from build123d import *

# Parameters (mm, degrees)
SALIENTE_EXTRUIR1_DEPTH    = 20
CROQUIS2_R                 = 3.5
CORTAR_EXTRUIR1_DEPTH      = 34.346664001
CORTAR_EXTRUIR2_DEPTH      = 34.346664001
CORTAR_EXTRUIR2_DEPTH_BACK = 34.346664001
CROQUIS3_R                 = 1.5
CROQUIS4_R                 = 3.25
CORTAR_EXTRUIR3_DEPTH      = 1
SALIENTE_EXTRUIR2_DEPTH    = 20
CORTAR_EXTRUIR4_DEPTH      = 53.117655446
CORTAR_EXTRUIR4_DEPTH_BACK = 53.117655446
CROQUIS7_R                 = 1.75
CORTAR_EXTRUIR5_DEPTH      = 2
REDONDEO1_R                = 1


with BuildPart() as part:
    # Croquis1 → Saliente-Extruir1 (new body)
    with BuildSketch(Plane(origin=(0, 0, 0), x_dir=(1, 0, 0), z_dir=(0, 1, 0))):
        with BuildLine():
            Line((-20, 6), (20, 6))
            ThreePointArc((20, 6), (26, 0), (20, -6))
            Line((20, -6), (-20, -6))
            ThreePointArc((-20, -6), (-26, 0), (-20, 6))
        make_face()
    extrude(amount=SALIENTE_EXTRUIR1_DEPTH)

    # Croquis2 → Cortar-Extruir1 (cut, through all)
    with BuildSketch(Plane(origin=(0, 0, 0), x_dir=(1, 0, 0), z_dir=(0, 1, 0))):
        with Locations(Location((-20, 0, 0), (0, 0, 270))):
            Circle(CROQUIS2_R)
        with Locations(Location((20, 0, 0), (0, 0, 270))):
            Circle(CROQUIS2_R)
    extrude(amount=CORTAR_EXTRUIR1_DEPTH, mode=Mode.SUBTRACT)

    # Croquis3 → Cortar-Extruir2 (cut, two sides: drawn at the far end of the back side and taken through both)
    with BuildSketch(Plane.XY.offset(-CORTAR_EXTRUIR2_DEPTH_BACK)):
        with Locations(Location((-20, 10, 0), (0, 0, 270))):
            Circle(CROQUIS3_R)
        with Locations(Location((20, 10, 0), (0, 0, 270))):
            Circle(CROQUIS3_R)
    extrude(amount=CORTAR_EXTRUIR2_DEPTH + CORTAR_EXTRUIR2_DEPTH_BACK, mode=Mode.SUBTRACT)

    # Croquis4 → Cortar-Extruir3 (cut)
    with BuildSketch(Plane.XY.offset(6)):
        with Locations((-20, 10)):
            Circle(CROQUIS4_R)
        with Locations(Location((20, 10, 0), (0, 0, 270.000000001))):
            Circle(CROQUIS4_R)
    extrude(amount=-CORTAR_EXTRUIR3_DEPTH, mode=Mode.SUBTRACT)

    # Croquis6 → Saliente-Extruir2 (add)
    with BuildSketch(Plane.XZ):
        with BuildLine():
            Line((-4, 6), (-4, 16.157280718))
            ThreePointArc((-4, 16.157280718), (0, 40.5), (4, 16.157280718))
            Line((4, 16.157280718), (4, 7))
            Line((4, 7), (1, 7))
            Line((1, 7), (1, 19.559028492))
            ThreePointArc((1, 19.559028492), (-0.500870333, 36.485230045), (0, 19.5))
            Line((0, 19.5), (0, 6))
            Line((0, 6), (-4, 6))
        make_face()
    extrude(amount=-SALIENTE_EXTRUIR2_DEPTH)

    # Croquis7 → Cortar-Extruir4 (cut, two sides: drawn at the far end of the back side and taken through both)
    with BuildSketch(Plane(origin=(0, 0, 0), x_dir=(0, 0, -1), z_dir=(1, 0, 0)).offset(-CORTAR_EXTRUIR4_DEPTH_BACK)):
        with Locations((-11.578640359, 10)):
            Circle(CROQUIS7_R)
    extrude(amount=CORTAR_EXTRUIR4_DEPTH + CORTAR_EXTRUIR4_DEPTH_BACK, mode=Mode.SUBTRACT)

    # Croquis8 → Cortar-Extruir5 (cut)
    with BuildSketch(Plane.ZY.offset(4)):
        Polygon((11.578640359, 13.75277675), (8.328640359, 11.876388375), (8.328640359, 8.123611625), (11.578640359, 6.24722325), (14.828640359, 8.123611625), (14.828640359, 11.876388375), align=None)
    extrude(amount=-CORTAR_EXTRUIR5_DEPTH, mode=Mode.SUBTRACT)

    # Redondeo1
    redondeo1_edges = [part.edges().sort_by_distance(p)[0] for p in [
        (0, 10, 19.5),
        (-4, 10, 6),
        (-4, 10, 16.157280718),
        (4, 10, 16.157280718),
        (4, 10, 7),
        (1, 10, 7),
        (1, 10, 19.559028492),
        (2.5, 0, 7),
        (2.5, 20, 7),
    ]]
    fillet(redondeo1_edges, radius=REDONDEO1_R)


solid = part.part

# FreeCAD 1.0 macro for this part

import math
import FreeCAD as App
import Part
import Sketcher

V = App.Vector
Q = App.Units.Quantity


def edges_at(feature, points):
    """Names of the edges that pass closest to the given points."""
    edges = feature.Shape.Edges
    near = lambda p: min(range(len(edges)), key=lambda i: edges[i].distToShape(Part.Vertex(*p))[0])
    return sorted({f"Edge{near(p) + 1}" for p in points})

doc = App.newDocument("Part")
body = doc.addObject("PartDesign::Body", "Body")

sketch1 = doc.addObject("Sketcher::SketchObject", "Sketch")
body.addObject(sketch1)
sketch1.AttachmentSupport = (doc.XZ_Plane, [""])
sketch1.MapMode = "FlatFace"
sketch1.addGeometry(Part.LineSegment(V(20, -6, 0), V(-20, -6, 0)), False)
sketch1.addGeometry(Part.ArcOfCircle(Part.Circle(V(-20, 0, 0), V(0, 0, 1), 6), math.radians(90), math.radians(270)), False)
sketch1.addGeometry(Part.LineSegment(V(-20, 6, 0), V(20, 6, 0)), False)
sketch1.addGeometry(Part.ArcOfCircle(Part.Circle(V(20, 0, 0), V(0, 0, 1), 6), math.radians(-90), math.radians(90)), False)
sketch1.addConstraint(Sketcher.Constraint("Tangent", 0, 2, 1, 2))
sketch1.addConstraint(Sketcher.Constraint("Tangent", 1, 1, 2, 1))
sketch1.addConstraint(Sketcher.Constraint("Tangent", 2, 2, 3, 2))
sketch1.addConstraint(Sketcher.Constraint("Tangent", 3, 1, 0, 1))
sketch1.addConstraint(Sketcher.Constraint("Horizontal", 0))
sketch1.addConstraint(Sketcher.Constraint("Horizontal", 2))
sketch1.addConstraint(Sketcher.Constraint("Symmetric", 1, 3, 3, 3, -1, 1))
sketch1.addConstraint(Sketcher.Constraint("Radius", 1, Q("6 mm")))
sketch1.addConstraint(Sketcher.Constraint("DistanceX", 0, 2, 0, 1, Q("40 mm")))
pad1 = doc.addObject("PartDesign::Pad", "Pad")
body.addObject(pad1)
pad1.Profile = sketch1
pad1.Length = 20
pad1.Reversed = True

sketch2 = doc.addObject("Sketcher::SketchObject", "Sketch001")
body.addObject(sketch2)
sketch2.AttachmentSupport = (doc.XZ_Plane, [""])
sketch2.MapMode = "FlatFace"
sketch2.addGeometry(Part.Circle(V(-20, 0, 0), V(0, 0, 1), 3.5), False)
sketch2.addGeometry(Part.Circle(V(20, 0, 0), V(0, 0, 1), 3.5), False)
sketch2.addConstraint(Sketcher.Constraint("Equal", 0, 1))
sketch2.addConstraint(Sketcher.Constraint("Symmetric", 0, 3, 1, 3, -1, 1))
sketch2.addConstraint(Sketcher.Constraint("PointOnObject", 0, 3, -1))
sketch2.addConstraint(Sketcher.Constraint("Diameter", 0, Q("7 mm")))
sketch2.addConstraint(Sketcher.Constraint("DistanceX", 0, 3, -1, 1, Q("20 mm")))
pocket1 = doc.addObject("PartDesign::Pocket", "Pocket")
body.addObject(pocket1)
pocket1.Profile = sketch2
pocket1.Type = "ThroughAll"

sketch3 = doc.addObject("Sketcher::SketchObject", "Sketch002")
body.addObject(sketch3)
sketch3.AttachmentSupport = (doc.XY_Plane, [""])
sketch3.MapMode = "FlatFace"
sketch3.addGeometry(Part.Circle(V(-20, 10, 0), V(0, 0, 1), 1.5), False)
sketch3.addGeometry(Part.Circle(V(20, 10, 0), V(0, 0, 1), 1.5), False)
sketch3.addConstraint(Sketcher.Constraint("Equal", 0, 1))
sketch3.addConstraint(Sketcher.Constraint("Symmetric", 0, 3, 1, 3, -2))
sketch3.addConstraint(Sketcher.Constraint("Diameter", 0, Q("3 mm")))
sketch3.addConstraint(Sketcher.Constraint("DistanceX", 0, 3, -1, 1, Q("20 mm")))
sketch3.addConstraint(Sketcher.Constraint("DistanceY", -1, 1, 0, 3, Q("10 mm")))
pocket2 = doc.addObject("PartDesign::Pocket", "Pocket001")
body.addObject(pocket2)
pocket2.Profile = sketch3
pocket2.Type = "ThroughAll"
pocket2.Midplane = True

sketch4 = doc.addObject("Sketcher::SketchObject", "Sketch003")
body.addObject(sketch4)
sketch4.AttachmentSupport = (doc.XY_Plane, [""])
sketch4.MapMode = "FlatFace"
sketch4.AttachmentOffset = App.Placement(V(0, 0, 6), App.Rotation())
sketch4.addGeometry(Part.Circle(V(-20, 10, 0), V(0, 0, 1), 3.2), False)
sketch4.addGeometry(Part.Circle(V(20, 10, 0), V(0, 0, 1), 3.2), False)
sketch4.addConstraint(Sketcher.Constraint("Equal", 0, 1))
sketch4.addConstraint(Sketcher.Constraint("Symmetric", 0, 3, 1, 3, -2))
sketch4.addConstraint(Sketcher.Constraint("Diameter", 0, Q("6.5 mm")))
sketch4.addConstraint(Sketcher.Constraint("DistanceX", 0, 3, -1, 1, Q("20 mm")))
sketch4.addConstraint(Sketcher.Constraint("DistanceY", -1, 1, 0, 3, Q("10 mm")))
pocket3 = doc.addObject("PartDesign::Pocket", "Pocket002")
body.addObject(pocket3)
pocket3.Profile = sketch4
pocket3.Length = 1

sketch5 = doc.addObject("Sketcher::SketchObject", "Sketch004")
body.addObject(sketch5)
sketch5.AttachmentSupport = (doc.XZ_Plane, [""])
sketch5.MapMode = "FlatFace"
sketch5.addGeometry(Part.LineSegment(V(-4, 16.2, 0), V(-4, 6, 0)), False)
sketch5.addGeometry(Part.LineSegment(V(-4, 6, 0), V(0, 6, 0)), False)
sketch5.addGeometry(Part.LineSegment(V(0, 6, 0), V(0, 19.5, 0)), False)
sketch5.addGeometry(Part.ArcOfCircle(Part.Circle(V(0, 28, 0), V(0, 0, 1), 8.5), math.radians(-83), math.radians(270)), False)
sketch5.addGeometry(Part.LineSegment(V(1, 19.6, 0), V(1, 7, 0)), False)
sketch5.addGeometry(Part.LineSegment(V(1, 7, 0), V(4, 7, 0)), False)
sketch5.addGeometry(Part.LineSegment(V(4, 7, 0), V(4, 16.2, 0)), False)
sketch5.addGeometry(Part.ArcOfCircle(Part.Circle(V(0, 28, 0), V(0, 0, 1), 12.5), math.radians(-71), math.radians(251)), False)
sketch5.addConstraint(Sketcher.Constraint("Coincident", 0, 2, 1, 1))
sketch5.addConstraint(Sketcher.Constraint("Coincident", 1, 2, 2, 1))
sketch5.addConstraint(Sketcher.Constraint("Coincident", 2, 2, 3, 2))
sketch5.addConstraint(Sketcher.Constraint("Coincident", 3, 1, 4, 1))
sketch5.addConstraint(Sketcher.Constraint("Coincident", 4, 2, 5, 1))
sketch5.addConstraint(Sketcher.Constraint("Coincident", 5, 2, 6, 1))
sketch5.addConstraint(Sketcher.Constraint("Coincident", 6, 2, 7, 1))
sketch5.addConstraint(Sketcher.Constraint("Coincident", 7, 2, 0, 1))
sketch5.addConstraint(Sketcher.Constraint("Vertical", 0))
sketch5.addConstraint(Sketcher.Constraint("Horizontal", 1))
sketch5.addConstraint(Sketcher.Constraint("Vertical", 2))
sketch5.addConstraint(Sketcher.Constraint("Vertical", 4))
sketch5.addConstraint(Sketcher.Constraint("Horizontal", 5))
sketch5.addConstraint(Sketcher.Constraint("Vertical", 6))
sketch5.addConstraint(Sketcher.Constraint("Coincident", 7, 3, 3, 3))
sketch5.addConstraint(Sketcher.Constraint("Symmetric", 6, 2, 7, 2, -2))
sketch5.addConstraint(Sketcher.Constraint("PointOnObject", 1, 2, -2))
sketch5.addConstraint(Sketcher.Constraint("Radius", 3, Q("8.5 mm")))
sketch5.addConstraint(Sketcher.Constraint("Radius", 7, Q("12.5 mm")))
sketch5.addConstraint(Sketcher.Constraint("DistanceX", 1, 1, 1, 2, Q("4 mm")))
sketch5.addConstraint(Sketcher.Constraint("DistanceX", 5, 1, 5, 2, Q("3 mm")))
sketch5.addConstraint(Sketcher.Constraint("DistanceY", 2, 1, 2, 2, Q("13.5 mm")))
sketch5.addConstraint(Sketcher.Constraint("DistanceY", -1, 1, 3, 3, Q("28 mm")))
sketch5.addConstraint(Sketcher.Constraint("DistanceY", -1, 1, 4, 2, Q("7 mm")))
pad2 = doc.addObject("PartDesign::Pad", "Pad001")
body.addObject(pad2)
pad2.Profile = sketch5
pad2.Length = 20
pad2.Reversed = True

sketch6 = doc.addObject("Sketcher::SketchObject", "Sketch005")
body.addObject(sketch6)
sketch6.AttachmentSupport = (doc.YZ_Plane, [""])
sketch6.MapMode = "FlatFace"
sketch6.addGeometry(Part.Circle(V(10, 11.6, 0), V(0, 0, 1), 1.8), False)
sketch6.addConstraint(Sketcher.Constraint("Diameter", 0, Q("3.5 mm")))
sketch6.addConstraint(Sketcher.Constraint("DistanceX", -1, 1, 0, 3, Q("10 mm")))
sketch6.addConstraint(Sketcher.Constraint("DistanceY", -1, 1, 0, 3, Q("11.57864 mm")))
pocket4 = doc.addObject("PartDesign::Pocket", "Pocket003")
body.addObject(pocket4)
pocket4.Profile = sketch6
pocket4.Type = "ThroughAll"
pocket4.Midplane = True

sketch7 = doc.addObject("Sketcher::SketchObject", "Sketch006")
body.addObject(sketch7)
sketch7.AttachmentSupport = (doc.YZ_Plane, [""])
sketch7.MapMode = "FlatFace"
sketch7.AttachmentOffset = App.Placement(V(0, 0, -4), App.Rotation())
sketch7.addGeometry(Part.LineSegment(V(13.8, 11.6, 0), V(11.9, 8.3, 0)), False)
sketch7.addGeometry(Part.LineSegment(V(11.9, 8.3, 0), V(8.1, 8.3, 0)), False)
sketch7.addGeometry(Part.LineSegment(V(8.1, 8.3, 0), V(6.2, 11.6, 0)), False)
sketch7.addGeometry(Part.LineSegment(V(6.2, 11.6, 0), V(8.1, 14.8, 0)), False)
sketch7.addGeometry(Part.LineSegment(V(8.1, 14.8, 0), V(11.9, 14.8, 0)), False)
sketch7.addGeometry(Part.LineSegment(V(11.9, 14.8, 0), V(13.8, 11.6, 0)), False)
sketch7.addConstraint(Sketcher.Constraint("Coincident", 0, 2, 1, 1))
sketch7.addConstraint(Sketcher.Constraint("Coincident", 1, 2, 2, 1))
sketch7.addConstraint(Sketcher.Constraint("Coincident", 2, 2, 3, 1))
sketch7.addConstraint(Sketcher.Constraint("Coincident", 3, 2, 4, 1))
sketch7.addConstraint(Sketcher.Constraint("Coincident", 4, 2, 5, 1))
sketch7.addConstraint(Sketcher.Constraint("Coincident", 5, 2, 0, 1))
sketch7.addConstraint(Sketcher.Constraint("Horizontal", 1))
sketch7.addConstraint(Sketcher.Constraint("Horizontal", 4))
sketch7.addConstraint(Sketcher.Constraint("Parallel", 0, 3))
sketch7.addConstraint(Sketcher.Constraint("Parallel", 2, 5))
sketch7.addConstraint(Sketcher.Constraint("Horizontal", 2, 2, 5, 2))
sketch7.addConstraint(Sketcher.Constraint("Vertical", 1, 2, 3, 2))
sketch7.addConstraint(Sketcher.Constraint("Vertical", 0, 2, 4, 2))
sketch7.addConstraint(Sketcher.Constraint("Angle", 0, Q("-120 deg")))
sketch7.addConstraint(Sketcher.Constraint("DistanceY", 1, 2, 3, 2, Q("6.5 mm")))
sketch7.addConstraint(Sketcher.Constraint("DistanceX", 1, 2, 1, 1, Q("3.752777 mm")))
sketch7.addConstraint(Sketcher.Constraint("DistanceX", -1, 1, 0, 2, Q("11.876388 mm")))
sketch7.addConstraint(Sketcher.Constraint("DistanceY", -1, 1, 0, 2, Q("8.32864 mm")))
pocket5 = doc.addObject("PartDesign::Pocket", "Pocket004")
body.addObject(pocket5)
pocket5.Profile = sketch7
pocket5.Length = 2
pocket5.Reversed = True
doc.recompute()

fillet = doc.addObject("PartDesign::Fillet", "Fillet")
body.addObject(fillet)
fillet.Base = (pocket5, edges_at(pocket5, [
    (0, 10, 19.5),
    (-4, 10, 6),
    (-4, 10, 16.157),
    (4, 10, 16.157),
    (4, 10, 7),
    (1, 10, 7),
    (1, 10, 19.559),
    (2.5, 0, 7),
    (2.5, 20, 7),
]))
fillet.Radius = 1

doc.recompute()
